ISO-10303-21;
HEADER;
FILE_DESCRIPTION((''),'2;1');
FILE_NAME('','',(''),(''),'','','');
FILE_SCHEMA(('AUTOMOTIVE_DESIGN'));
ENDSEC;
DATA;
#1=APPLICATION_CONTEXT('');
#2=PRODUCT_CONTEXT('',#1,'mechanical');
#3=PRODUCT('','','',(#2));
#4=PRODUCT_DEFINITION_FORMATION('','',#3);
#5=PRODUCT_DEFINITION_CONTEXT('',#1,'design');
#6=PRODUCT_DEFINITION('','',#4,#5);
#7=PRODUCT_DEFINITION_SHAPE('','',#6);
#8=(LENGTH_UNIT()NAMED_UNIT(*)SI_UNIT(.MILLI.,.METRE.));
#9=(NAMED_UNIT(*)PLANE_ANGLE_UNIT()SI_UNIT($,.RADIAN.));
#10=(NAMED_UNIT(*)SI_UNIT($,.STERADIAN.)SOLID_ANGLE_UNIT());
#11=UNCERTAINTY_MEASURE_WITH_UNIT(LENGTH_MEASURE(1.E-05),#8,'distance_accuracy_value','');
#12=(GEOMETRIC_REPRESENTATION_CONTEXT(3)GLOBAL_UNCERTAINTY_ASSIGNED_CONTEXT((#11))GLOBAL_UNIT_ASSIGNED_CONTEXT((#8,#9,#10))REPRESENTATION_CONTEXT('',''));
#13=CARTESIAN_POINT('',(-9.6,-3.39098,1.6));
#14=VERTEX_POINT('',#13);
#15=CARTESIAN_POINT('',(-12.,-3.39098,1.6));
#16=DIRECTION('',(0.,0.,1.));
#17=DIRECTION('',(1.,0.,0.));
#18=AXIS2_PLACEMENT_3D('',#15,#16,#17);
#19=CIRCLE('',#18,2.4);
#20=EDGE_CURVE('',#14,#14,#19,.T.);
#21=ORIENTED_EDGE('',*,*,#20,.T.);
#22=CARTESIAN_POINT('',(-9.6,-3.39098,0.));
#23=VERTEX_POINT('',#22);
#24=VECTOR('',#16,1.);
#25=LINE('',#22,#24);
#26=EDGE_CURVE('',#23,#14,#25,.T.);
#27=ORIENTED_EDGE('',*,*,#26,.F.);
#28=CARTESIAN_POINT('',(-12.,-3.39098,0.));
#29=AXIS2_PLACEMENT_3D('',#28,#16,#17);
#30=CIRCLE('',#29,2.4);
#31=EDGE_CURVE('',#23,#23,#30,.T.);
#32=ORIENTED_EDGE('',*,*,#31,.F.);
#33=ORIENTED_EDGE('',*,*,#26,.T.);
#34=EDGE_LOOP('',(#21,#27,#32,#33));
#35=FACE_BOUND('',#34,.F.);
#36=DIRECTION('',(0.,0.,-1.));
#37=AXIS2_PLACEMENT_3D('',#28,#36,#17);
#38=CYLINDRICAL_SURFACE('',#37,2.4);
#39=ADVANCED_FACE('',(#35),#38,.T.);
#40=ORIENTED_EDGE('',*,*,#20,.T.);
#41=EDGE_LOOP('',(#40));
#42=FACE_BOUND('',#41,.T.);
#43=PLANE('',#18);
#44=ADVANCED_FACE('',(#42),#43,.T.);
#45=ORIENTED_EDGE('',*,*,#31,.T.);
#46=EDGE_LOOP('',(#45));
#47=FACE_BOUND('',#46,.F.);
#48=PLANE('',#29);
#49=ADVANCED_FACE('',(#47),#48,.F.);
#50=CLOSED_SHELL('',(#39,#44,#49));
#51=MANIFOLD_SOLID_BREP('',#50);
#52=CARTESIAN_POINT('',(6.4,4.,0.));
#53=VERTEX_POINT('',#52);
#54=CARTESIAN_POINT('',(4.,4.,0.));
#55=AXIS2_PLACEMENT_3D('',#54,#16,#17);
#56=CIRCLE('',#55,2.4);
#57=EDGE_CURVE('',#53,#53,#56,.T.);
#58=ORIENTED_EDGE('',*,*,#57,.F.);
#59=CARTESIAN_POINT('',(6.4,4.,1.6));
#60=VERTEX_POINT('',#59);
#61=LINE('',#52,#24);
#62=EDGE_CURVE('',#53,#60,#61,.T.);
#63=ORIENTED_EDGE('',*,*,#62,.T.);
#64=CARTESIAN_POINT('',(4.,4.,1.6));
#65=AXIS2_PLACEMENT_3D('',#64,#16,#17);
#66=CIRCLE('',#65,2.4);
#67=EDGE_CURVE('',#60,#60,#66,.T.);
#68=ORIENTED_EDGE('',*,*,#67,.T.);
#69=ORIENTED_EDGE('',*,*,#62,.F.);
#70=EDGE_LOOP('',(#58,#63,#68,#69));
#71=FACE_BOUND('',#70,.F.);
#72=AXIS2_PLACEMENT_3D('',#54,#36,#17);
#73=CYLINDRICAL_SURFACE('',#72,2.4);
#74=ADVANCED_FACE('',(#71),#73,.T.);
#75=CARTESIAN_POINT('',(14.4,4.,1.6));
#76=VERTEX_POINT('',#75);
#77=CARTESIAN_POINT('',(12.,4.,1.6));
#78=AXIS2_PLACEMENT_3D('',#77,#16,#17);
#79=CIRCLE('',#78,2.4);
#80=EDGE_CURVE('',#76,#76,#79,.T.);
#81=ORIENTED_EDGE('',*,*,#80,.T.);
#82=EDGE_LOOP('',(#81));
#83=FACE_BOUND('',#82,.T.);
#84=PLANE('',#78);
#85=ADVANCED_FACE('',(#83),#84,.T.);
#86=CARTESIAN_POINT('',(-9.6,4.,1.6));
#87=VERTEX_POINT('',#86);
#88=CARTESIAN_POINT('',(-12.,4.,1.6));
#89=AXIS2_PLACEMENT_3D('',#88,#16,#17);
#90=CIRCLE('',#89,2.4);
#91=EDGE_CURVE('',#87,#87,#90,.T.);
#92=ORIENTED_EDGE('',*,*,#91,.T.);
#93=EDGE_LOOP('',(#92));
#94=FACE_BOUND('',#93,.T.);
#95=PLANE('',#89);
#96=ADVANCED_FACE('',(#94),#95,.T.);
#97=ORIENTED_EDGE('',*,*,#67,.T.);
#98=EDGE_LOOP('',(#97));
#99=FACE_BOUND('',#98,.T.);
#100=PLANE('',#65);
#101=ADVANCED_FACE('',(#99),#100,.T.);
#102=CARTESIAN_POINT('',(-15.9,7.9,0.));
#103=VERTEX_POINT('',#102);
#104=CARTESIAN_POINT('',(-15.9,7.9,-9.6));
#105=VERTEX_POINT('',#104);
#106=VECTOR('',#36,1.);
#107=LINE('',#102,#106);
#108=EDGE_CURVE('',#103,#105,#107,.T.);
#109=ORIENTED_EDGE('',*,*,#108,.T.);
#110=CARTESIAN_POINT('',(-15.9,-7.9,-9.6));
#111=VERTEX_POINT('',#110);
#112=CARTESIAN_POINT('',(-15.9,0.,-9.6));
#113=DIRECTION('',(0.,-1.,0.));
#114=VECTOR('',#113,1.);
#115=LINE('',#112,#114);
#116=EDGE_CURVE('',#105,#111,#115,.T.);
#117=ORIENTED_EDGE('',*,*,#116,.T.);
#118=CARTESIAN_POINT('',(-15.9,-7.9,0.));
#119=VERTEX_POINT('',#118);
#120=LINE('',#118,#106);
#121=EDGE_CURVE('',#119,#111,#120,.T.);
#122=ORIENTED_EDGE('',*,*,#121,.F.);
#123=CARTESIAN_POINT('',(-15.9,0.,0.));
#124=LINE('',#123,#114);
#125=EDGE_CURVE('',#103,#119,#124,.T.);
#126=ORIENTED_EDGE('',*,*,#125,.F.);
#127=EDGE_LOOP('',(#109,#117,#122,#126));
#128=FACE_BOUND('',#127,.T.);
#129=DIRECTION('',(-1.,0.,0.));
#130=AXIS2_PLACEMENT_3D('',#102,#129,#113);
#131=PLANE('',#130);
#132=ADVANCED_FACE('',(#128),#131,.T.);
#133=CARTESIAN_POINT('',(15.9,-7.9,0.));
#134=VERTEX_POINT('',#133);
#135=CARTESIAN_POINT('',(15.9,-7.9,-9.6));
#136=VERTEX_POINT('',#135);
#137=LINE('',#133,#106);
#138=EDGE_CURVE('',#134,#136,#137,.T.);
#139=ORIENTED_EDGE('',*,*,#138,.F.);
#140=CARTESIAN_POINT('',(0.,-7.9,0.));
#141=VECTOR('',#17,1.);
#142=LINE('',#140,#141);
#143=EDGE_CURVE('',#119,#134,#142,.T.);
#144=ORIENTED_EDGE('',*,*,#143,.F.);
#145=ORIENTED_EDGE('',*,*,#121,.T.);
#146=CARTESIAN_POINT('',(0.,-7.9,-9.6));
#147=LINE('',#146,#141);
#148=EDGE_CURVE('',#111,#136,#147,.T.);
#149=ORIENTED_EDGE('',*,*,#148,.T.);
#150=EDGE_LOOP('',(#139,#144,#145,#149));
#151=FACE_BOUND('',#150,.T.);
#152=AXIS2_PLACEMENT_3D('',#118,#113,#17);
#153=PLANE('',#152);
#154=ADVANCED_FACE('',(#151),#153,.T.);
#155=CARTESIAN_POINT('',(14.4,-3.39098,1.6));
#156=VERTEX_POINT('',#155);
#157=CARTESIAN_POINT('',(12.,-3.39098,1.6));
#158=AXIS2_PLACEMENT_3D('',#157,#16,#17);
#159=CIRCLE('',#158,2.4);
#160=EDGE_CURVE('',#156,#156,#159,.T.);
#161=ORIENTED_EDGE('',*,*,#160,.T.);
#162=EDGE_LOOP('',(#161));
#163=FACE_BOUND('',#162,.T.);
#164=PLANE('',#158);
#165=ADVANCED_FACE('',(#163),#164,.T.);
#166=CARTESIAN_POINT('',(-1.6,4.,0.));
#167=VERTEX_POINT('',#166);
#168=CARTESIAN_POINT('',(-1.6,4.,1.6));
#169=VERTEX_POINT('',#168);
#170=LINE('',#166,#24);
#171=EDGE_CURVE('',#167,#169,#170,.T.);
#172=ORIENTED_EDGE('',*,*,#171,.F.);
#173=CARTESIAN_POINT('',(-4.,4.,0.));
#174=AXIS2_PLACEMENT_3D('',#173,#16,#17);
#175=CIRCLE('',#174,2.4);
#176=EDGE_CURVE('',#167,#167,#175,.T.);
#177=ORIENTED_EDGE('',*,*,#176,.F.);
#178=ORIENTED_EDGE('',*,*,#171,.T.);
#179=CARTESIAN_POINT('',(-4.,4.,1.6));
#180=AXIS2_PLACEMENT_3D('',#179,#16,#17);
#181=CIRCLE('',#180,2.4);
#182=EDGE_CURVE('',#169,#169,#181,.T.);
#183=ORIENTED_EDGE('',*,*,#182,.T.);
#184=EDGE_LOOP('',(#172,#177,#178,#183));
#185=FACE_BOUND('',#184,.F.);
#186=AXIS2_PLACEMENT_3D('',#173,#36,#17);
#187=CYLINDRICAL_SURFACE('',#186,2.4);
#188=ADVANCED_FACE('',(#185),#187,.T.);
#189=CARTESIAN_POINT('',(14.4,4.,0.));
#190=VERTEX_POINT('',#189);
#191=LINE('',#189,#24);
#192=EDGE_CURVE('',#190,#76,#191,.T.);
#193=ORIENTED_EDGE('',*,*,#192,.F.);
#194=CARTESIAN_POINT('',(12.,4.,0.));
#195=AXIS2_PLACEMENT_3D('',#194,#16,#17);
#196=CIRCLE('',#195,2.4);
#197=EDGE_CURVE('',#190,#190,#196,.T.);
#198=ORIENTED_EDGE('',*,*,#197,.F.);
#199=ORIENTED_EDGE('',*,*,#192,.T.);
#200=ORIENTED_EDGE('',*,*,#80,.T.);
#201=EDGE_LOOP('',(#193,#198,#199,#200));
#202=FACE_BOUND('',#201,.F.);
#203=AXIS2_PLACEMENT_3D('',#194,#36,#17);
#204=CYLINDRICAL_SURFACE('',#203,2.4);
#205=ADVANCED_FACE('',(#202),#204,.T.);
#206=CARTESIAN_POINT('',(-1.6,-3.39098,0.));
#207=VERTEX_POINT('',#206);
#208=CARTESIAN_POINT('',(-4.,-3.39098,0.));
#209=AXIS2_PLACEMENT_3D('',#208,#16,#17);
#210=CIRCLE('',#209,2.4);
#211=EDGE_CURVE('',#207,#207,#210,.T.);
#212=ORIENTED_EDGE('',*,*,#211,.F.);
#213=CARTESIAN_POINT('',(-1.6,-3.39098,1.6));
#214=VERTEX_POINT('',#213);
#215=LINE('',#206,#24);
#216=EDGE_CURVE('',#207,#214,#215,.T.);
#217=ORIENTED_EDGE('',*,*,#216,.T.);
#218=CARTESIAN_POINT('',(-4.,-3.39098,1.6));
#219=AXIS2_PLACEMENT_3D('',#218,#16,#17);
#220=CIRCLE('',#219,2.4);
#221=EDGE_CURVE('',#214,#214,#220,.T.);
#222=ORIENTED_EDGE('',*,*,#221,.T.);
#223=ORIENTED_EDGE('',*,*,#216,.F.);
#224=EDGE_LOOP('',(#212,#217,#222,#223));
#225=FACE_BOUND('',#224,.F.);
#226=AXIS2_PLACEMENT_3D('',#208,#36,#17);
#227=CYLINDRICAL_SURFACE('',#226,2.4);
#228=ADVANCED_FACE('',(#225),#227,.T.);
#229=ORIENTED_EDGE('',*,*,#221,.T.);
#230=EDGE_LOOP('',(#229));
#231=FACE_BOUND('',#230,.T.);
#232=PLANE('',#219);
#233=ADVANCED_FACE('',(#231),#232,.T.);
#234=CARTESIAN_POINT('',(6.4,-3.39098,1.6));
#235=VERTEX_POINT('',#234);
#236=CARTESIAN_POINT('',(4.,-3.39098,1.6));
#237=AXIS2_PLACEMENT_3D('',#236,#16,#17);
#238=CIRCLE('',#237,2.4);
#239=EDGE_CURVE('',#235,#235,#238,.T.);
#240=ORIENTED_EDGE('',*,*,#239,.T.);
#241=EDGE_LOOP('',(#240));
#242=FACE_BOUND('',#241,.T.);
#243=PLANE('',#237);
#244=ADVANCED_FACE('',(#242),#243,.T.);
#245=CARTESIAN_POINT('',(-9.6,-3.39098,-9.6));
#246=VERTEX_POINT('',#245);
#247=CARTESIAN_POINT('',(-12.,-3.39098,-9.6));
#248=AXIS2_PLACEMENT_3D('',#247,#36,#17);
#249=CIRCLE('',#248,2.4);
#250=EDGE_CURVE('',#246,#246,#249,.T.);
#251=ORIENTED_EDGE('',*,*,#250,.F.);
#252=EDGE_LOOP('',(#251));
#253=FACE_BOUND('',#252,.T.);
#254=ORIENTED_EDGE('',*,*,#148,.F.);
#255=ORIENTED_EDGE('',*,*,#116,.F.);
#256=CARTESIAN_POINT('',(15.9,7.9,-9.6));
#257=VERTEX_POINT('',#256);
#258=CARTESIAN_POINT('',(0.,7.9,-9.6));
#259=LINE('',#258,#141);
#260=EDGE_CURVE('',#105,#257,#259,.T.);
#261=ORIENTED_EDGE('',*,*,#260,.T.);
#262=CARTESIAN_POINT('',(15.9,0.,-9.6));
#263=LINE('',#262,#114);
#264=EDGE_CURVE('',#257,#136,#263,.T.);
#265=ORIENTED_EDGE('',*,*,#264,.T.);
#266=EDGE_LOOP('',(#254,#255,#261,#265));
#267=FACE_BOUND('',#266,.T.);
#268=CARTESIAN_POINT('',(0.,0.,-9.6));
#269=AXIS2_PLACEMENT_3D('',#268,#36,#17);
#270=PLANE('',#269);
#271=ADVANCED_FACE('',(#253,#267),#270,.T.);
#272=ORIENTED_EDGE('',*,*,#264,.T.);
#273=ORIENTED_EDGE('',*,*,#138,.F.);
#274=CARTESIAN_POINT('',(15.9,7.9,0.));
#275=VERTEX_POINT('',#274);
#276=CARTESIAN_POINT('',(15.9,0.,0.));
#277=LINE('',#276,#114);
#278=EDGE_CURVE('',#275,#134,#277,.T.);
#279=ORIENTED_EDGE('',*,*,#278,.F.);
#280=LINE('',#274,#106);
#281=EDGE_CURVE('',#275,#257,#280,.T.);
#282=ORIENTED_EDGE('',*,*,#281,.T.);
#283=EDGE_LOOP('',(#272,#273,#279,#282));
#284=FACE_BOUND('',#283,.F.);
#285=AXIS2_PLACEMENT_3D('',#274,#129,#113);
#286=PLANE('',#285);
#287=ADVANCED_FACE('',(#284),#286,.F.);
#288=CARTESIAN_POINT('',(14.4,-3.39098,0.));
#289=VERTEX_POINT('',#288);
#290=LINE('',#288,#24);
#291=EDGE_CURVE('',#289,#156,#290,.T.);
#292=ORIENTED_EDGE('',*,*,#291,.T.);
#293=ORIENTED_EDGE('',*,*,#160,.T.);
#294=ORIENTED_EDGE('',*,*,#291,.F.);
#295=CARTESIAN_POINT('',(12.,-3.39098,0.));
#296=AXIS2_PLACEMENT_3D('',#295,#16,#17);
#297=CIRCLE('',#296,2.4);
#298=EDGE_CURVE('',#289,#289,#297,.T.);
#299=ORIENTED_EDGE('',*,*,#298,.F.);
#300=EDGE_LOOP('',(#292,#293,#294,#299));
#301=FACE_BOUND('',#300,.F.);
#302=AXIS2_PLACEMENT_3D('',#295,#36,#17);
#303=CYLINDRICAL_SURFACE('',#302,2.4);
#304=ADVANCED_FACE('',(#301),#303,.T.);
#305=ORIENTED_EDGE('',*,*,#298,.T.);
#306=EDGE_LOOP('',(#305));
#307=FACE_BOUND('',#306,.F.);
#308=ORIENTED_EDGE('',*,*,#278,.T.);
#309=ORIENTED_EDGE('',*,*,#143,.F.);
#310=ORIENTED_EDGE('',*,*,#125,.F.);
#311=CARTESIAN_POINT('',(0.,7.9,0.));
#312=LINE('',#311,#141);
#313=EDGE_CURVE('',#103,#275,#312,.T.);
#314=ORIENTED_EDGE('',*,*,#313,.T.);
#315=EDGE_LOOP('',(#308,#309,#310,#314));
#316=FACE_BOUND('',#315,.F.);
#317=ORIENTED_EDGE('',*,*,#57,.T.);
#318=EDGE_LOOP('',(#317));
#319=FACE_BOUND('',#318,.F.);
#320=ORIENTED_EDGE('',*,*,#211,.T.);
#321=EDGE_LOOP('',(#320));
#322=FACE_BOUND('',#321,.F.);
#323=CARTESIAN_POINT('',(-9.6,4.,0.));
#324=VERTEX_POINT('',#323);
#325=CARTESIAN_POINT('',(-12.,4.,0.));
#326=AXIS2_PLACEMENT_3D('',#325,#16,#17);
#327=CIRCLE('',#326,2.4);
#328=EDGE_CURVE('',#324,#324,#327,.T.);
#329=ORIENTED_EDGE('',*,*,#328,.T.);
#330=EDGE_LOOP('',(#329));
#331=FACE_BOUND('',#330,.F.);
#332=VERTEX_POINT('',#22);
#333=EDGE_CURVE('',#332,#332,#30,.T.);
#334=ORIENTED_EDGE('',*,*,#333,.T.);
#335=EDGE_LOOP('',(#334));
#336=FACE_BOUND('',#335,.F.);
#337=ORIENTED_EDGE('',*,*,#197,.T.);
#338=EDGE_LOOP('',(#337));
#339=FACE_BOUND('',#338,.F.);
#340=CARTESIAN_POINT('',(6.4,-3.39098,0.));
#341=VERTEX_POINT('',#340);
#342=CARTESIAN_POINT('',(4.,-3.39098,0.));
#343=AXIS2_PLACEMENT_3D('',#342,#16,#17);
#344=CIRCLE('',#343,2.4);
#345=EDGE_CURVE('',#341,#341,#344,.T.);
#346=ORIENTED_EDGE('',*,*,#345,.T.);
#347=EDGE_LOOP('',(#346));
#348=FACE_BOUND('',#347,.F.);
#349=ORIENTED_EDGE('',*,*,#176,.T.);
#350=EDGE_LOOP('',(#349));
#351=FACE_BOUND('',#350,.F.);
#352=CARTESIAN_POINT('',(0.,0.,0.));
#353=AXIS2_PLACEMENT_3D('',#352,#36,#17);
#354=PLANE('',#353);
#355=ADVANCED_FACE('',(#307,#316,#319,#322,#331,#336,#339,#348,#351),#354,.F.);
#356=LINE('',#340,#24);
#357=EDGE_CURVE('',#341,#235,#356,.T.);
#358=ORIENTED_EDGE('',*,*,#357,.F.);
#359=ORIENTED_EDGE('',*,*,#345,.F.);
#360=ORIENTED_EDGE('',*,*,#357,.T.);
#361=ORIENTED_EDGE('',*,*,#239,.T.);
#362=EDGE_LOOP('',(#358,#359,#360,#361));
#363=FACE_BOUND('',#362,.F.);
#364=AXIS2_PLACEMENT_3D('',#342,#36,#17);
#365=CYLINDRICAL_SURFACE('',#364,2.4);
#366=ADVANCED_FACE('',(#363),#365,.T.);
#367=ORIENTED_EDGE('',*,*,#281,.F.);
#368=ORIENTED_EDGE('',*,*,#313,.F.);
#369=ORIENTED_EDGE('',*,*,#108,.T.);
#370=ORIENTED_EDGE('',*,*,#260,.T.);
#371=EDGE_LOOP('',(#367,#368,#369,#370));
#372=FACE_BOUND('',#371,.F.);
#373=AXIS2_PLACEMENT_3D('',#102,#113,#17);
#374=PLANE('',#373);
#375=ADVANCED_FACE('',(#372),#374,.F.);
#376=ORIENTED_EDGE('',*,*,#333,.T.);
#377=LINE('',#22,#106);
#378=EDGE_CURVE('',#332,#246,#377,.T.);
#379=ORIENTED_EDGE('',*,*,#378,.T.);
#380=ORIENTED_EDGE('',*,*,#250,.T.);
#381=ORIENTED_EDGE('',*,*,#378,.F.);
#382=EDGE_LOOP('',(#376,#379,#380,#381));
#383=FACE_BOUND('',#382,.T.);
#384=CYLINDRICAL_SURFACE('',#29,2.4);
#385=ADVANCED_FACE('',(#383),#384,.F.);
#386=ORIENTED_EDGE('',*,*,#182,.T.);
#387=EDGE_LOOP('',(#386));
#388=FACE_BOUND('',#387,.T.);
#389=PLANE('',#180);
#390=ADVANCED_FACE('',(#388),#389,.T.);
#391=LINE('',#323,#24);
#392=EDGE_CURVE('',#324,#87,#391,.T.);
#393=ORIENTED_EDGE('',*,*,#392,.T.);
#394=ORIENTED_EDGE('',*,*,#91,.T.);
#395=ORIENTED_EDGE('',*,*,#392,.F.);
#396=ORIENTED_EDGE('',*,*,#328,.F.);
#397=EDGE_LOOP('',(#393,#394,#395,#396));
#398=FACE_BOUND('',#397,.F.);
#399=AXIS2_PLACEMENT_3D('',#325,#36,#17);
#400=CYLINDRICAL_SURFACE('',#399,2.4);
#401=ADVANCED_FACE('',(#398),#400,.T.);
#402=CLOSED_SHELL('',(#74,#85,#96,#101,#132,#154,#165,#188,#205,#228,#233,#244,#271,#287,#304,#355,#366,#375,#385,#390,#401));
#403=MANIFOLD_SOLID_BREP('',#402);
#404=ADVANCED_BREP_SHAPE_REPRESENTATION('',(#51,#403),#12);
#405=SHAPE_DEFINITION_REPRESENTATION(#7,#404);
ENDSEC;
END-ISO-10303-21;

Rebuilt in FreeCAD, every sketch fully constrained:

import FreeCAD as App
import Part
import Sketcher

V = App.Vector
Q = App.Units.Quantity

doc = App.newDocument("Part")
body = doc.addObject("PartDesign::Body", "Body")

sketch1 = body.newObject("Sketcher::SketchObject", "Sketch")
sketch1.AttachmentSupport = (doc.getObject("XY_Plane"), [""])
sketch1.MapMode = "FlatFace"
sketch1.addGeometry(Part.Circle(V(-12, -3.4, 0), V(0, 0, 1), 2.4), False)
sketch1.addConstraint(Sketcher.Constraint("Diameter", 0, Q("4.8 mm")))
sketch1.addConstraint(Sketcher.Constraint("DistanceX", 0, 3, -1, 1, Q("12 mm")))
sketch1.addConstraint(Sketcher.Constraint("DistanceY", 0, 3, -1, 1, Q("3.39098 mm")))
pad1 = body.newObject("PartDesign::Pad", "Pad")
pad1.Profile = sketch1
pad1.Length = 1.6
body2 = doc.addObject("PartDesign::Body", "Body001")

sketch2 = body2.newObject("Sketcher::SketchObject", "Sketch001")
sketch2.AttachmentSupport = (doc.getObject("XY_Plane001"), [""])
sketch2.MapMode = "FlatFace"
sketch2.addGeometry(Part.Circle(V(-12, 4, 0), V(0, 0, 1), 2.4), False)
sketch2.addConstraint(Sketcher.Constraint("Diameter", 0, Q("4.8 mm")))
sketch2.addConstraint(Sketcher.Constraint("DistanceX", 0, 3, -1, 1, Q("12 mm")))
sketch2.addConstraint(Sketcher.Constraint("DistanceY", -1, 1, 0, 3, Q("4 mm")))
pad2 = body2.newObject("PartDesign::Pad", "Pad001")
pad2.Profile = sketch2
pad2.Length = 1.6
body3 = doc.addObject("PartDesign::Body", "Body002")

sketch3 = body3.newObject("Sketcher::SketchObject", "Sketch002")
sketch3.AttachmentSupport = (doc.getObject("XY_Plane002"), [""])
sketch3.MapMode = "FlatFace"
sketch3.addGeometry(Part.Circle(V(-4, 4, 0), V(0, 0, 1), 2.4), False)
sketch3.addConstraint(Sketcher.Constraint("Diameter", 0, Q("4.8 mm")))
sketch3.addConstraint(Sketcher.Constraint("DistanceX", 0, 3, -1, 1, Q("4 mm")))
sketch3.addConstraint(Sketcher.Constraint("DistanceY", -1, 1, 0, 3, Q("4 mm")))
pad3 = body3.newObject("PartDesign::Pad", "Pad002")
pad3.Profile = sketch3
pad3.Length = 1.6
body4 = doc.addObject("PartDesign::Body", "Body003")

sketch4 = body4.newObject("Sketcher::SketchObject", "Sketch003")
sketch4.AttachmentSupport = (doc.getObject("XY_Plane003"), [""])
sketch4.MapMode = "FlatFace"
sketch4.addGeometry(Part.Circle(V(-4, -3.4, 0), V(0, 0, 1), 2.4), False)
sketch4.addConstraint(Sketcher.Constraint("Diameter", 0, Q("4.8 mm")))
sketch4.addConstraint(Sketcher.Constraint("DistanceX", 0, 3, -1, 1, Q("4 mm")))
sketch4.addConstraint(Sketcher.Constraint("DistanceY", 0, 3, -1, 1, Q("3.39098 mm")))
pad4 = body4.newObject("PartDesign::Pad", "Pad003")
pad4.Profile = sketch4
pad4.Length = 1.6
body5 = doc.addObject("PartDesign::Body", "Body004")

sketch5 = body5.newObject("Sketcher::SketchObject", "Sketch004")
sketch5.AttachmentSupport = (doc.getObject("XY_Plane004"), [""])
sketch5.MapMode = "FlatFace"
sketch5.addGeometry(Part.Circle(V(4, -3.4, 0), V(0, 0, 1), 2.4), False)
sketch5.addConstraint(Sketcher.Constraint("Diameter", 0, Q("4.8 mm")))
sketch5.addConstraint(Sketcher.Constraint("DistanceX", -1, 1, 0, 3, Q("4 mm")))
sketch5.addConstraint(Sketcher.Constraint("DistanceY", 0, 3, -1, 1, Q("3.39098 mm")))
pad5 = body5.newObject("PartDesign::Pad", "Pad004")
pad5.Profile = sketch5
pad5.Length = 1.6
body6 = doc.addObject("PartDesign::Body", "Body005")

sketch6 = body6.newObject("Sketcher::SketchObject", "Sketch005")
sketch6.AttachmentSupport = (doc.getObject("XY_Plane005"), [""])
sketch6.MapMode = "FlatFace"
sketch6.addGeometry(Part.Circle(V(4, 4, 0), V(0, 0, 1), 2.4), False)
sketch6.addConstraint(Sketcher.Constraint("Diameter", 0, Q("4.8 mm")))
sketch6.addConstraint(Sketcher.Constraint("DistanceX", -1, 1, 0, 3, Q("4 mm")))
sketch6.addConstraint(Sketcher.Constraint("DistanceY", -1, 1, 0, 3, Q("4 mm")))
pad6 = body6.newObject("PartDesign::Pad", "Pad005")
pad6.Profile = sketch6
pad6.Length = 1.6
body7 = doc.addObject("PartDesign::Body", "Body006")

sketch7 = body7.newObject("Sketcher::SketchObject", "Sketch006")
sketch7.AttachmentSupport = (doc.getObject("XY_Plane006"), [""])
sketch7.MapMode = "FlatFace"
sketch7.addGeometry(Part.Circle(V(12, 4, 0), V(0, 0, 1), 2.4), False)
sketch7.addConstraint(Sketcher.Constraint("Diameter", 0, Q("4.8 mm")))
sketch7.addConstraint(Sketcher.Constraint("DistanceX", -1, 1, 0, 3, Q("12 mm")))
sketch7.addConstraint(Sketcher.Constraint("DistanceY", -1, 1, 0, 3, Q("4 mm")))
pad7 = body7.newObject("PartDesign::Pad", "Pad006")
pad7.Profile = sketch7
pad7.Length = 1.6
body8 = doc.addObject("PartDesign::Body", "Body007")

sketch8 = body8.newObject("Sketcher::SketchObject", "Sketch007")
sketch8.AttachmentSupport = (doc.getObject("XY_Plane007"), [""])
sketch8.MapMode = "FlatFace"
sketch8.addGeometry(Part.Circle(V(12, -3.4, 0), V(0, 0, 1), 2.4), False)
sketch8.addConstraint(Sketcher.Constraint("Diameter", 0, Q("4.8 mm")))
sketch8.addConstraint(Sketcher.Constraint("DistanceX", -1, 1, 0, 3, Q("12 mm")))
sketch8.addConstraint(Sketcher.Constraint("DistanceY", 0, 3, -1, 1, Q("3.39098 mm")))
pad8 = body8.newObject("PartDesign::Pad", "Pad007")
pad8.Profile = sketch8
pad8.Length = 1.6
body.AllowCompound = True
doc.recompute()

boolean = body.newObject("PartDesign::Boolean", "Boolean")
boolean.Type = "Fuse"
boolean.addObjects([body2])
doc.recompute()

boolean2 = body.newObject("PartDesign::Boolean", "Boolean001")
boolean2.Type = "Fuse"
boolean2.addObjects([body3])
doc.recompute()

boolean3 = body.newObject("PartDesign::Boolean", "Boolean002")
boolean3.Type = "Fuse"
boolean3.addObjects([body4])
doc.recompute()

boolean4 = body.newObject("PartDesign::Boolean", "Boolean003")
boolean4.Type = "Fuse"
boolean4.addObjects([body5])
doc.recompute()

boolean5 = body.newObject("PartDesign::Boolean", "Boolean004")
boolean5.Type = "Fuse"
boolean5.addObjects([body6])
doc.recompute()

boolean6 = body.newObject("PartDesign::Boolean", "Boolean005")
boolean6.Type = "Fuse"
boolean6.addObjects([body7])
doc.recompute()

boolean7 = body.newObject("PartDesign::Boolean", "Boolean006")
boolean7.Type = "Fuse"
boolean7.addObjects([body8])

sketch9 = body.newObject("Sketcher::SketchObject", "Sketch008")
sketch9.AttachmentSupport = (doc.getObject("XY_Plane"), [""])
sketch9.MapMode = "FlatFace"
sketch9.addGeometry(Part.LineSegment(V(-15.9, -7.9, 0), V(-15.9, 7.9, 0)), False)
sketch9.addGeometry(Part.LineSegment(V(-15.9, 7.9, 0), V(15.9, 7.9, 0)), False)
sketch9.addGeometry(Part.LineSegment(V(15.9, 7.9, 0), V(15.9, -7.9, 0)), False)
sketch9.addGeometry(Part.LineSegment(V(15.9, -7.9, 0), V(-15.9, -7.9, 0)), False)
sketch9.addGeometry(Part.Circle(V(-12, -3.4, 0), V(0, 0, 1), 2.4), False)
sketch9.addConstraint(Sketcher.Constraint("Coincident", 0, 2, 1, 1))
sketch9.addConstraint(Sketcher.Constraint("Coincident", 1, 2, 2, 1))
sketch9.addConstraint(Sketcher.Constraint("Coincident", 2, 2, 3, 1))
sketch9.addConstraint(Sketcher.Constraint("Coincident", 3, 2, 0, 1))
sketch9.addConstraint(Sketcher.Constraint("Vertical", 0))
sketch9.addConstraint(Sketcher.Constraint("Horizontal", 1))
sketch9.addConstraint(Sketcher.Constraint("Vertical", 2))
sketch9.addConstraint(Sketcher.Constraint("Horizontal", 3))
sketch9.addConstraint(Sketcher.Constraint("Symmetric", 0, 2, 2, 2, -1, 1))
sketch9.addConstraint(Sketcher.Constraint("Diameter", 4, Q("4.8 mm")))
sketch9.addConstraint(Sketcher.Constraint("DistanceX", 1, 1, 1, 2, Q("31.8 mm")))
sketch9.addConstraint(Sketcher.Constraint("DistanceY", 0, 1, 0, 2, Q("15.8 mm")))
sketch9.addConstraint(Sketcher.Constraint("DistanceX", 4, 3, -1, 1, Q("12 mm")))
sketch9.addConstraint(Sketcher.Constraint("DistanceY", 4, 3, -1, 1, Q("3.39098 mm")))
pad9 = body.newObject("PartDesign::Pad", "Pad008")
pad9.Profile = sketch9
pad9.Length = 9.6
pad9.Reversed = True

doc.recompute()
